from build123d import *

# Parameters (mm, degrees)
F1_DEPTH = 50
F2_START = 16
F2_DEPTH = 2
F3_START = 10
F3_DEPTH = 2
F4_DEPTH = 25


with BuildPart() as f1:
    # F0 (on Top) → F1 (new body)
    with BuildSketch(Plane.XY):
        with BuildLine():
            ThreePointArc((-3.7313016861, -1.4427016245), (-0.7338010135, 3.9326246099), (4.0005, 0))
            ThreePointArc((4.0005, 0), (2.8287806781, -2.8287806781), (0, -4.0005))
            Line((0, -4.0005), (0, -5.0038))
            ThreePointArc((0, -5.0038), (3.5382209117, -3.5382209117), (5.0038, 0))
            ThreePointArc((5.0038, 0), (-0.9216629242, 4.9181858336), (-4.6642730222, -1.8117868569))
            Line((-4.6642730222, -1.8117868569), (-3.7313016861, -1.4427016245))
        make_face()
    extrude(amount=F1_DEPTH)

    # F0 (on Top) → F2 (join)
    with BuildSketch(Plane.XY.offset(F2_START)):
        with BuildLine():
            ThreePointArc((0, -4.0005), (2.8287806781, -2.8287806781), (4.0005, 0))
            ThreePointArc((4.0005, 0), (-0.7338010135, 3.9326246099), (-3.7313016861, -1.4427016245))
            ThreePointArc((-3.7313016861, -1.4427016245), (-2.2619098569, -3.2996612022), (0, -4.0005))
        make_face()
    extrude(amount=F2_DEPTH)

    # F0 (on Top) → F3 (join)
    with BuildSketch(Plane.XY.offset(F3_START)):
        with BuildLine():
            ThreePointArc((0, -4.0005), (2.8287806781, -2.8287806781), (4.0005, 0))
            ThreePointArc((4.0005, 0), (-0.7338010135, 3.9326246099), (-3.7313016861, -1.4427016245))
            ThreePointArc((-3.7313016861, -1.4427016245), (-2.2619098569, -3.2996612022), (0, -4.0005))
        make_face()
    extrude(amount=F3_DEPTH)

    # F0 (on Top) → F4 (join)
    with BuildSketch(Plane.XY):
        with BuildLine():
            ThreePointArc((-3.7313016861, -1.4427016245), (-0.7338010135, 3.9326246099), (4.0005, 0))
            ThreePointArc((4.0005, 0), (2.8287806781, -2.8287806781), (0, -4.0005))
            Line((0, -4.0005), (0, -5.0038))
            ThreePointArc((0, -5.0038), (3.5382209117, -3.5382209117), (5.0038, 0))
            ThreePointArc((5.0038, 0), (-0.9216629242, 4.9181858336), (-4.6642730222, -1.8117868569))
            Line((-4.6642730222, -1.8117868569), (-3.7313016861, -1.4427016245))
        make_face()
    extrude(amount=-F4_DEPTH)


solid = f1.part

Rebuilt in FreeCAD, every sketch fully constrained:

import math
import FreeCAD as App
import Part
import Sketcher

V = App.Vector

doc = App.newDocument("Part")
body = doc.addObject("PartDesign::Body", "Body")

# Sketch on XY plane
sketch1 = body.newObject("Sketcher::SketchObject", "Sketch")
sketch1.AttachmentSupport = (doc.getObject("XY_Plane"), [""])
sketch1.MapMode = "FlatFace"
sketch1.addGeometry([
    Part.ArcOfCircle(Part.Circle(V(0, 0, 0), V(0, 0, 1), 4), math.radians(0), math.radians(201)),  # 0
    Part.ArcOfCircle(Part.Circle(V(0, 0, 0), V(0, 0, 1), 4), math.radians(-90), math.radians(0)),  # 1
    Part.LineSegment(V(0, -4, 0), V(0, -5, 0)),  # 2
    Part.ArcOfCircle(Part.Circle(V(0, 0, 0), V(0, 0, 1), 5), math.radians(-90), math.radians(0)),  # 3
    Part.ArcOfCircle(Part.Circle(V(0, 0, 0), V(0, 0, 1), 5), math.radians(0), math.radians(201)),  # 4
    Part.LineSegment(V(-4.7, -1.8, 0), V(-3.7, -1.4, 0)),  # 5
], False)
sketch1.addConstraint([
    Sketcher.Constraint("Tangent", 0, 1, 1, 2),
    Sketcher.Constraint("Coincident", 1, 1, 2, 1),
    Sketcher.Constraint("Coincident", 2, 2, 3, 1),
    Sketcher.Constraint("Tangent", 3, 2, 4, 1),
    Sketcher.Constraint("Coincident", 4, 2, 5, 1),
    Sketcher.Constraint("Coincident", 5, 2, 0, 2),
    Sketcher.Constraint("Vertical", 2),
    Sketcher.Constraint("Coincident", 0, 3, -1, 1),
    Sketcher.Constraint("Coincident", 3, 3, -1, 1),
    Sketcher.Constraint("Equal", 0, 1),
    Sketcher.Constraint("Equal", 3, 4),
    Sketcher.Constraint("PointOnObject", 0, 1, -1),
    Sketcher.Constraint("PointOnObject", 1, 1, -2),
    Sketcher.Constraint("PointOnObject", 3, 2, -1),
    Sketcher.Constraint("Radius", 0, 4.0005),
    Sketcher.Constraint("Radius", 3, 5.0038),
    Sketcher.Constraint("DistanceX", 5, 2, -1, 1, 3.731302),
    Sketcher.Constraint("DistanceX", 4, 2, 5, 2, 0.932971),
])
pad1 = body.newObject("PartDesign::Pad", "Pad")
pad1.Profile = sketch1
pad1.Length = 50

# Sketch on XY plane
sketch2 = body.newObject("Sketcher::SketchObject", "Sketch001")
sketch2.AttachmentSupport = (doc.getObject("XY_Plane"), [""])
sketch2.MapMode = "FlatFace"
sketch2.AttachmentOffset = App.Placement(V(0, 0, 16), App.Rotation())
sketch2.addGeometry([
    Part.ArcOfCircle(Part.Circle(V(0, 0, 0), V(0, 0, 1), 4), math.radians(-90), math.radians(0)),
    Part.ArcOfCircle(Part.Circle(V(0, 0, 0), V(0, 0, 1), 4), math.radians(0), math.radians(201)),
    Part.ArcOfCircle(Part.Circle(V(0, 0, 0), V(0, 0, 1), 4), math.radians(-159), math.radians(-90)),
], False)
sketch2.addConstraint([
    Sketcher.Constraint("Tangent", 0, 2, 1, 1),
    Sketcher.Constraint("Tangent", 1, 2, 2, 1),
    Sketcher.Constraint("Tangent", 2, 2, 0, 1),
    Sketcher.Constraint("Coincident", 0, 3, -1, 1),
    Sketcher.Constraint("PointOnObject", 0, 2, -1),
    Sketcher.Constraint("PointOnObject", 2, 2, -2),
    Sketcher.Constraint("Radius", 0, 4.0005),
    Sketcher.Constraint("DistanceX", 1, 2, -1, 1, 3.731302),
])
pad2 = body.newObject("PartDesign::Pad", "Pad001")
pad2.Profile = sketch2
pad2.Length = 2

# Sketch on XY plane
sketch3 = body.newObject("Sketcher::SketchObject", "Sketch002")
sketch3.AttachmentSupport = (doc.getObject("XY_Plane"), [""])
sketch3.MapMode = "FlatFace"
sketch3.AttachmentOffset = App.Placement(V(0, 0, 10), App.Rotation())
sketch3.addGeometry([
    Part.ArcOfCircle(Part.Circle(V(0, 0, 0), V(0, 0, 1), 4), math.radians(-90), math.radians(0)),
    Part.ArcOfCircle(Part.Circle(V(0, 0, 0), V(0, 0, 1), 4), math.radians(0), math.radians(201)),
    Part.ArcOfCircle(Part.Circle(V(0, 0, 0), V(0, 0, 1), 4), math.radians(-159), math.radians(-90)),
], False)
sketch3.addConstraint([
    Sketcher.Constraint("Tangent", 0, 2, 1, 1),
    Sketcher.Constraint("Tangent", 1, 2, 2, 1),
    Sketcher.Constraint("Tangent", 2, 2, 0, 1),
    Sketcher.Constraint("Coincident", 0, 3, -1, 1),
    Sketcher.Constraint("PointOnObject", 0, 2, -1),
    Sketcher.Constraint("PointOnObject", 2, 2, -2),
    Sketcher.Constraint("Radius", 0, 4.0005),
    Sketcher.Constraint("DistanceX", 1, 2, -1, 1, 3.731302),
])
pad3 = body.newObject("PartDesign::Pad", "Pad002")
pad3.Profile = sketch3
pad3.Length = 2

# Sketch on XY plane
sketch4 = body.newObject("Sketcher::SketchObject", "Sketch003")
sketch4.AttachmentSupport = (doc.getObject("XY_Plane"), [""])
sketch4.MapMode = "FlatFace"
sketch4.addGeometry([
    Part.ArcOfCircle(Part.Circle(V(0, 0, 0), V(0, 0, 1), 4), math.radians(0), math.radians(201)),  # 0
    Part.ArcOfCircle(Part.Circle(V(0, 0, 0), V(0, 0, 1), 4), math.radians(-90), math.radians(0)),  # 1
    Part.LineSegment(V(0, -4, 0), V(0, -5, 0)),  # 2
    Part.ArcOfCircle(Part.Circle(V(0, 0, 0), V(0, 0, 1), 5), math.radians(-90), math.radians(0)),  # 3
    Part.ArcOfCircle(Part.Circle(V(0, 0, 0), V(0, 0, 1), 5), math.radians(0), math.radians(201)),  # 4
    Part.LineSegment(V(-4.7, -1.8, 0), V(-3.7, -1.4, 0)),  # 5
], False)
sketch4.addConstraint([
    Sketcher.Constraint("Tangent", 0, 1, 1, 2),
    Sketcher.Constraint("Coincident", 1, 1, 2, 1),
    Sketcher.Constraint("Coincident", 2, 2, 3, 1),
    Sketcher.Constraint("Tangent", 3, 2, 4, 1),
    Sketcher.Constraint("Coincident", 4, 2, 5, 1),
    Sketcher.Constraint("Coincident", 5, 2, 0, 2),
    Sketcher.Constraint("Vertical", 2),
    Sketcher.Constraint("Coincident", 0, 3, -1, 1),
    Sketcher.Constraint("Coincident", 3, 3, -1, 1),
    Sketcher.Constraint("Equal", 0, 1),
    Sketcher.Constraint("Equal", 3, 4),
    Sketcher.Constraint("PointOnObject", 0, 1, -1),
    Sketcher.Constraint("PointOnObject", 1, 1, -2),
    Sketcher.Constraint("PointOnObject", 3, 2, -1),
    Sketcher.Constraint("Radius", 0, 4.0005),
    Sketcher.Constraint("Radius", 3, 5.0038),
    Sketcher.Constraint("DistanceX", 5, 2, -1, 1, 3.731302),
    Sketcher.Constraint("DistanceX", 4, 2, 5, 2, 0.932971),
])
pad4 = body.newObject("PartDesign::Pad", "Pad003")
pad4.Profile = sketch4
pad4.Length = 25
pad4.Reversed = True

doc.recompute()
